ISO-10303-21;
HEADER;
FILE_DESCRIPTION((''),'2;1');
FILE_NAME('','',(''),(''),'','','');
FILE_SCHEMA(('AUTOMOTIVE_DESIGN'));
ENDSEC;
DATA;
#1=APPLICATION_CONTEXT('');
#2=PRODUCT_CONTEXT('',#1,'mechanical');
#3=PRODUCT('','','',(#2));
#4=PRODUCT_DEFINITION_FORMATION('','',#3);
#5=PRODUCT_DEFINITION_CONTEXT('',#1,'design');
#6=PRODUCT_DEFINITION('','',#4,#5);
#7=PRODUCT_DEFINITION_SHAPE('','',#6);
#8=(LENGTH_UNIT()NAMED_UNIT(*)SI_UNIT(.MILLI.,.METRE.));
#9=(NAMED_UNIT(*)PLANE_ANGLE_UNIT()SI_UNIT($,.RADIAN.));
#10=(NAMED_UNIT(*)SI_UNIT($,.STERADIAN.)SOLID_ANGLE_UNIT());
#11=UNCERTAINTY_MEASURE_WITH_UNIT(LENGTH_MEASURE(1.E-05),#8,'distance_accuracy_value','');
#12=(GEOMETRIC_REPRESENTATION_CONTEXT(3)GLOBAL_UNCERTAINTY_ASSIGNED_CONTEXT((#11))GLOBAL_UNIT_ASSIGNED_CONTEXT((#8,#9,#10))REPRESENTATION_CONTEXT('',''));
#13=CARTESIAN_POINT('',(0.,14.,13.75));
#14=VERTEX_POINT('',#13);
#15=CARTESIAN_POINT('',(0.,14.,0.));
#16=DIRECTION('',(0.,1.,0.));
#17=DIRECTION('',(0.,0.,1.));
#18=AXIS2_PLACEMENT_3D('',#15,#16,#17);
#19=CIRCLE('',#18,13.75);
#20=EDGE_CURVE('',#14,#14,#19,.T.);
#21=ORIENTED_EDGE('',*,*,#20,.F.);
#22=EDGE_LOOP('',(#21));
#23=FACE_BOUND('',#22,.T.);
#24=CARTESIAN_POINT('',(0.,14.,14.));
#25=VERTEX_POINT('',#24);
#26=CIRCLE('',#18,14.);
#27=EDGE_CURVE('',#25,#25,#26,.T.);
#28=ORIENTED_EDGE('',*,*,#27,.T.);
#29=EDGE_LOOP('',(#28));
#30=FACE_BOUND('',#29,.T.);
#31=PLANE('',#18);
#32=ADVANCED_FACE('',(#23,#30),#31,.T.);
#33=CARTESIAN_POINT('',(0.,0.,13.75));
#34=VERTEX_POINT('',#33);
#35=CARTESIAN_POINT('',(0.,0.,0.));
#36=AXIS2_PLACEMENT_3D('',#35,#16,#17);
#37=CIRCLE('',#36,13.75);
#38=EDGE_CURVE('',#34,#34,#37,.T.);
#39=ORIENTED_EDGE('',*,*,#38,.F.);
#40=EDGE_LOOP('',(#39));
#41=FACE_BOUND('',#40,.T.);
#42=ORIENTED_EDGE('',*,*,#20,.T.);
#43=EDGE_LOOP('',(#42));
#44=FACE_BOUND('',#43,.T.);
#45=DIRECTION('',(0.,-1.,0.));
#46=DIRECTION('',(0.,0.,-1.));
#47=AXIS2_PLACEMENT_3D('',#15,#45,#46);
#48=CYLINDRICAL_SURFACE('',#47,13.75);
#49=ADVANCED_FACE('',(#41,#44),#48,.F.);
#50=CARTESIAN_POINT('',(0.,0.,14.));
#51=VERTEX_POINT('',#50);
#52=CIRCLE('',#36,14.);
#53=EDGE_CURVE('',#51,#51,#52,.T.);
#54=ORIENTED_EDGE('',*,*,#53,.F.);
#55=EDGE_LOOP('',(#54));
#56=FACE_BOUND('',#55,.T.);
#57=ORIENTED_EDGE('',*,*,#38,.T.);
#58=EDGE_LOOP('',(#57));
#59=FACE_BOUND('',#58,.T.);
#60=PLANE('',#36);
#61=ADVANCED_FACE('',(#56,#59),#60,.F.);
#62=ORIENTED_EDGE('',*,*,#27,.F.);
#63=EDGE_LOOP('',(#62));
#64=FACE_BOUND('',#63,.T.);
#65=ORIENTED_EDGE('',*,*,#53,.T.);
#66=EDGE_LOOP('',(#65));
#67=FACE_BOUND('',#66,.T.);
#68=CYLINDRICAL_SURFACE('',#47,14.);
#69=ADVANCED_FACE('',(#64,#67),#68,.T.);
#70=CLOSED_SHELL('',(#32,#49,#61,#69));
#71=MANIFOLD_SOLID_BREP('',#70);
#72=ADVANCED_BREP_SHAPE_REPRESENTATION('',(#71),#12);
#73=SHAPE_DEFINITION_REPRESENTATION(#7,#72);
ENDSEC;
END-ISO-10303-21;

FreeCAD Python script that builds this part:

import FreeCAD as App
import Part
import Sketcher
Q = App.Units.Quantity

doc = App.newDocument("Part")
body = doc.addObject("PartDesign::Body", "Body")

sketch1 = body.newObject("Sketcher::SketchObject", "Sketch")
sketch1.AttachmentSupport = (doc.getObject("XZ_Plane"), [""])
sketch1.MapMode = "FlatFace"
sketch1.addGeometry(Part.Circle(App.Vector(0, 0, 0), App.Vector(0, 0, 1), 14), False)
sketch1.addGeometry(Part.Circle(App.Vector(0, 0, 0), App.Vector(0, 0, 1), 14), False)
sketch1.addConstraint(Sketcher.Constraint("Coincident", 0, 3, -1, 1))
sketch1.addConstraint(Sketcher.Constraint("Coincident", 1, 3, -1, 1))
sketch1.addConstraint(Sketcher.Constraint("Diameter", 0, Q("28 mm")))
sketch1.addConstraint(Sketcher.Constraint("Diameter", 1, Q("27.5 mm")))
pad1 = body.newObject("PartDesign::Pad", "Pad")
pad1.Profile = sketch1
pad1.Length = 14
pad1.Reversed = True

doc.recompute()
